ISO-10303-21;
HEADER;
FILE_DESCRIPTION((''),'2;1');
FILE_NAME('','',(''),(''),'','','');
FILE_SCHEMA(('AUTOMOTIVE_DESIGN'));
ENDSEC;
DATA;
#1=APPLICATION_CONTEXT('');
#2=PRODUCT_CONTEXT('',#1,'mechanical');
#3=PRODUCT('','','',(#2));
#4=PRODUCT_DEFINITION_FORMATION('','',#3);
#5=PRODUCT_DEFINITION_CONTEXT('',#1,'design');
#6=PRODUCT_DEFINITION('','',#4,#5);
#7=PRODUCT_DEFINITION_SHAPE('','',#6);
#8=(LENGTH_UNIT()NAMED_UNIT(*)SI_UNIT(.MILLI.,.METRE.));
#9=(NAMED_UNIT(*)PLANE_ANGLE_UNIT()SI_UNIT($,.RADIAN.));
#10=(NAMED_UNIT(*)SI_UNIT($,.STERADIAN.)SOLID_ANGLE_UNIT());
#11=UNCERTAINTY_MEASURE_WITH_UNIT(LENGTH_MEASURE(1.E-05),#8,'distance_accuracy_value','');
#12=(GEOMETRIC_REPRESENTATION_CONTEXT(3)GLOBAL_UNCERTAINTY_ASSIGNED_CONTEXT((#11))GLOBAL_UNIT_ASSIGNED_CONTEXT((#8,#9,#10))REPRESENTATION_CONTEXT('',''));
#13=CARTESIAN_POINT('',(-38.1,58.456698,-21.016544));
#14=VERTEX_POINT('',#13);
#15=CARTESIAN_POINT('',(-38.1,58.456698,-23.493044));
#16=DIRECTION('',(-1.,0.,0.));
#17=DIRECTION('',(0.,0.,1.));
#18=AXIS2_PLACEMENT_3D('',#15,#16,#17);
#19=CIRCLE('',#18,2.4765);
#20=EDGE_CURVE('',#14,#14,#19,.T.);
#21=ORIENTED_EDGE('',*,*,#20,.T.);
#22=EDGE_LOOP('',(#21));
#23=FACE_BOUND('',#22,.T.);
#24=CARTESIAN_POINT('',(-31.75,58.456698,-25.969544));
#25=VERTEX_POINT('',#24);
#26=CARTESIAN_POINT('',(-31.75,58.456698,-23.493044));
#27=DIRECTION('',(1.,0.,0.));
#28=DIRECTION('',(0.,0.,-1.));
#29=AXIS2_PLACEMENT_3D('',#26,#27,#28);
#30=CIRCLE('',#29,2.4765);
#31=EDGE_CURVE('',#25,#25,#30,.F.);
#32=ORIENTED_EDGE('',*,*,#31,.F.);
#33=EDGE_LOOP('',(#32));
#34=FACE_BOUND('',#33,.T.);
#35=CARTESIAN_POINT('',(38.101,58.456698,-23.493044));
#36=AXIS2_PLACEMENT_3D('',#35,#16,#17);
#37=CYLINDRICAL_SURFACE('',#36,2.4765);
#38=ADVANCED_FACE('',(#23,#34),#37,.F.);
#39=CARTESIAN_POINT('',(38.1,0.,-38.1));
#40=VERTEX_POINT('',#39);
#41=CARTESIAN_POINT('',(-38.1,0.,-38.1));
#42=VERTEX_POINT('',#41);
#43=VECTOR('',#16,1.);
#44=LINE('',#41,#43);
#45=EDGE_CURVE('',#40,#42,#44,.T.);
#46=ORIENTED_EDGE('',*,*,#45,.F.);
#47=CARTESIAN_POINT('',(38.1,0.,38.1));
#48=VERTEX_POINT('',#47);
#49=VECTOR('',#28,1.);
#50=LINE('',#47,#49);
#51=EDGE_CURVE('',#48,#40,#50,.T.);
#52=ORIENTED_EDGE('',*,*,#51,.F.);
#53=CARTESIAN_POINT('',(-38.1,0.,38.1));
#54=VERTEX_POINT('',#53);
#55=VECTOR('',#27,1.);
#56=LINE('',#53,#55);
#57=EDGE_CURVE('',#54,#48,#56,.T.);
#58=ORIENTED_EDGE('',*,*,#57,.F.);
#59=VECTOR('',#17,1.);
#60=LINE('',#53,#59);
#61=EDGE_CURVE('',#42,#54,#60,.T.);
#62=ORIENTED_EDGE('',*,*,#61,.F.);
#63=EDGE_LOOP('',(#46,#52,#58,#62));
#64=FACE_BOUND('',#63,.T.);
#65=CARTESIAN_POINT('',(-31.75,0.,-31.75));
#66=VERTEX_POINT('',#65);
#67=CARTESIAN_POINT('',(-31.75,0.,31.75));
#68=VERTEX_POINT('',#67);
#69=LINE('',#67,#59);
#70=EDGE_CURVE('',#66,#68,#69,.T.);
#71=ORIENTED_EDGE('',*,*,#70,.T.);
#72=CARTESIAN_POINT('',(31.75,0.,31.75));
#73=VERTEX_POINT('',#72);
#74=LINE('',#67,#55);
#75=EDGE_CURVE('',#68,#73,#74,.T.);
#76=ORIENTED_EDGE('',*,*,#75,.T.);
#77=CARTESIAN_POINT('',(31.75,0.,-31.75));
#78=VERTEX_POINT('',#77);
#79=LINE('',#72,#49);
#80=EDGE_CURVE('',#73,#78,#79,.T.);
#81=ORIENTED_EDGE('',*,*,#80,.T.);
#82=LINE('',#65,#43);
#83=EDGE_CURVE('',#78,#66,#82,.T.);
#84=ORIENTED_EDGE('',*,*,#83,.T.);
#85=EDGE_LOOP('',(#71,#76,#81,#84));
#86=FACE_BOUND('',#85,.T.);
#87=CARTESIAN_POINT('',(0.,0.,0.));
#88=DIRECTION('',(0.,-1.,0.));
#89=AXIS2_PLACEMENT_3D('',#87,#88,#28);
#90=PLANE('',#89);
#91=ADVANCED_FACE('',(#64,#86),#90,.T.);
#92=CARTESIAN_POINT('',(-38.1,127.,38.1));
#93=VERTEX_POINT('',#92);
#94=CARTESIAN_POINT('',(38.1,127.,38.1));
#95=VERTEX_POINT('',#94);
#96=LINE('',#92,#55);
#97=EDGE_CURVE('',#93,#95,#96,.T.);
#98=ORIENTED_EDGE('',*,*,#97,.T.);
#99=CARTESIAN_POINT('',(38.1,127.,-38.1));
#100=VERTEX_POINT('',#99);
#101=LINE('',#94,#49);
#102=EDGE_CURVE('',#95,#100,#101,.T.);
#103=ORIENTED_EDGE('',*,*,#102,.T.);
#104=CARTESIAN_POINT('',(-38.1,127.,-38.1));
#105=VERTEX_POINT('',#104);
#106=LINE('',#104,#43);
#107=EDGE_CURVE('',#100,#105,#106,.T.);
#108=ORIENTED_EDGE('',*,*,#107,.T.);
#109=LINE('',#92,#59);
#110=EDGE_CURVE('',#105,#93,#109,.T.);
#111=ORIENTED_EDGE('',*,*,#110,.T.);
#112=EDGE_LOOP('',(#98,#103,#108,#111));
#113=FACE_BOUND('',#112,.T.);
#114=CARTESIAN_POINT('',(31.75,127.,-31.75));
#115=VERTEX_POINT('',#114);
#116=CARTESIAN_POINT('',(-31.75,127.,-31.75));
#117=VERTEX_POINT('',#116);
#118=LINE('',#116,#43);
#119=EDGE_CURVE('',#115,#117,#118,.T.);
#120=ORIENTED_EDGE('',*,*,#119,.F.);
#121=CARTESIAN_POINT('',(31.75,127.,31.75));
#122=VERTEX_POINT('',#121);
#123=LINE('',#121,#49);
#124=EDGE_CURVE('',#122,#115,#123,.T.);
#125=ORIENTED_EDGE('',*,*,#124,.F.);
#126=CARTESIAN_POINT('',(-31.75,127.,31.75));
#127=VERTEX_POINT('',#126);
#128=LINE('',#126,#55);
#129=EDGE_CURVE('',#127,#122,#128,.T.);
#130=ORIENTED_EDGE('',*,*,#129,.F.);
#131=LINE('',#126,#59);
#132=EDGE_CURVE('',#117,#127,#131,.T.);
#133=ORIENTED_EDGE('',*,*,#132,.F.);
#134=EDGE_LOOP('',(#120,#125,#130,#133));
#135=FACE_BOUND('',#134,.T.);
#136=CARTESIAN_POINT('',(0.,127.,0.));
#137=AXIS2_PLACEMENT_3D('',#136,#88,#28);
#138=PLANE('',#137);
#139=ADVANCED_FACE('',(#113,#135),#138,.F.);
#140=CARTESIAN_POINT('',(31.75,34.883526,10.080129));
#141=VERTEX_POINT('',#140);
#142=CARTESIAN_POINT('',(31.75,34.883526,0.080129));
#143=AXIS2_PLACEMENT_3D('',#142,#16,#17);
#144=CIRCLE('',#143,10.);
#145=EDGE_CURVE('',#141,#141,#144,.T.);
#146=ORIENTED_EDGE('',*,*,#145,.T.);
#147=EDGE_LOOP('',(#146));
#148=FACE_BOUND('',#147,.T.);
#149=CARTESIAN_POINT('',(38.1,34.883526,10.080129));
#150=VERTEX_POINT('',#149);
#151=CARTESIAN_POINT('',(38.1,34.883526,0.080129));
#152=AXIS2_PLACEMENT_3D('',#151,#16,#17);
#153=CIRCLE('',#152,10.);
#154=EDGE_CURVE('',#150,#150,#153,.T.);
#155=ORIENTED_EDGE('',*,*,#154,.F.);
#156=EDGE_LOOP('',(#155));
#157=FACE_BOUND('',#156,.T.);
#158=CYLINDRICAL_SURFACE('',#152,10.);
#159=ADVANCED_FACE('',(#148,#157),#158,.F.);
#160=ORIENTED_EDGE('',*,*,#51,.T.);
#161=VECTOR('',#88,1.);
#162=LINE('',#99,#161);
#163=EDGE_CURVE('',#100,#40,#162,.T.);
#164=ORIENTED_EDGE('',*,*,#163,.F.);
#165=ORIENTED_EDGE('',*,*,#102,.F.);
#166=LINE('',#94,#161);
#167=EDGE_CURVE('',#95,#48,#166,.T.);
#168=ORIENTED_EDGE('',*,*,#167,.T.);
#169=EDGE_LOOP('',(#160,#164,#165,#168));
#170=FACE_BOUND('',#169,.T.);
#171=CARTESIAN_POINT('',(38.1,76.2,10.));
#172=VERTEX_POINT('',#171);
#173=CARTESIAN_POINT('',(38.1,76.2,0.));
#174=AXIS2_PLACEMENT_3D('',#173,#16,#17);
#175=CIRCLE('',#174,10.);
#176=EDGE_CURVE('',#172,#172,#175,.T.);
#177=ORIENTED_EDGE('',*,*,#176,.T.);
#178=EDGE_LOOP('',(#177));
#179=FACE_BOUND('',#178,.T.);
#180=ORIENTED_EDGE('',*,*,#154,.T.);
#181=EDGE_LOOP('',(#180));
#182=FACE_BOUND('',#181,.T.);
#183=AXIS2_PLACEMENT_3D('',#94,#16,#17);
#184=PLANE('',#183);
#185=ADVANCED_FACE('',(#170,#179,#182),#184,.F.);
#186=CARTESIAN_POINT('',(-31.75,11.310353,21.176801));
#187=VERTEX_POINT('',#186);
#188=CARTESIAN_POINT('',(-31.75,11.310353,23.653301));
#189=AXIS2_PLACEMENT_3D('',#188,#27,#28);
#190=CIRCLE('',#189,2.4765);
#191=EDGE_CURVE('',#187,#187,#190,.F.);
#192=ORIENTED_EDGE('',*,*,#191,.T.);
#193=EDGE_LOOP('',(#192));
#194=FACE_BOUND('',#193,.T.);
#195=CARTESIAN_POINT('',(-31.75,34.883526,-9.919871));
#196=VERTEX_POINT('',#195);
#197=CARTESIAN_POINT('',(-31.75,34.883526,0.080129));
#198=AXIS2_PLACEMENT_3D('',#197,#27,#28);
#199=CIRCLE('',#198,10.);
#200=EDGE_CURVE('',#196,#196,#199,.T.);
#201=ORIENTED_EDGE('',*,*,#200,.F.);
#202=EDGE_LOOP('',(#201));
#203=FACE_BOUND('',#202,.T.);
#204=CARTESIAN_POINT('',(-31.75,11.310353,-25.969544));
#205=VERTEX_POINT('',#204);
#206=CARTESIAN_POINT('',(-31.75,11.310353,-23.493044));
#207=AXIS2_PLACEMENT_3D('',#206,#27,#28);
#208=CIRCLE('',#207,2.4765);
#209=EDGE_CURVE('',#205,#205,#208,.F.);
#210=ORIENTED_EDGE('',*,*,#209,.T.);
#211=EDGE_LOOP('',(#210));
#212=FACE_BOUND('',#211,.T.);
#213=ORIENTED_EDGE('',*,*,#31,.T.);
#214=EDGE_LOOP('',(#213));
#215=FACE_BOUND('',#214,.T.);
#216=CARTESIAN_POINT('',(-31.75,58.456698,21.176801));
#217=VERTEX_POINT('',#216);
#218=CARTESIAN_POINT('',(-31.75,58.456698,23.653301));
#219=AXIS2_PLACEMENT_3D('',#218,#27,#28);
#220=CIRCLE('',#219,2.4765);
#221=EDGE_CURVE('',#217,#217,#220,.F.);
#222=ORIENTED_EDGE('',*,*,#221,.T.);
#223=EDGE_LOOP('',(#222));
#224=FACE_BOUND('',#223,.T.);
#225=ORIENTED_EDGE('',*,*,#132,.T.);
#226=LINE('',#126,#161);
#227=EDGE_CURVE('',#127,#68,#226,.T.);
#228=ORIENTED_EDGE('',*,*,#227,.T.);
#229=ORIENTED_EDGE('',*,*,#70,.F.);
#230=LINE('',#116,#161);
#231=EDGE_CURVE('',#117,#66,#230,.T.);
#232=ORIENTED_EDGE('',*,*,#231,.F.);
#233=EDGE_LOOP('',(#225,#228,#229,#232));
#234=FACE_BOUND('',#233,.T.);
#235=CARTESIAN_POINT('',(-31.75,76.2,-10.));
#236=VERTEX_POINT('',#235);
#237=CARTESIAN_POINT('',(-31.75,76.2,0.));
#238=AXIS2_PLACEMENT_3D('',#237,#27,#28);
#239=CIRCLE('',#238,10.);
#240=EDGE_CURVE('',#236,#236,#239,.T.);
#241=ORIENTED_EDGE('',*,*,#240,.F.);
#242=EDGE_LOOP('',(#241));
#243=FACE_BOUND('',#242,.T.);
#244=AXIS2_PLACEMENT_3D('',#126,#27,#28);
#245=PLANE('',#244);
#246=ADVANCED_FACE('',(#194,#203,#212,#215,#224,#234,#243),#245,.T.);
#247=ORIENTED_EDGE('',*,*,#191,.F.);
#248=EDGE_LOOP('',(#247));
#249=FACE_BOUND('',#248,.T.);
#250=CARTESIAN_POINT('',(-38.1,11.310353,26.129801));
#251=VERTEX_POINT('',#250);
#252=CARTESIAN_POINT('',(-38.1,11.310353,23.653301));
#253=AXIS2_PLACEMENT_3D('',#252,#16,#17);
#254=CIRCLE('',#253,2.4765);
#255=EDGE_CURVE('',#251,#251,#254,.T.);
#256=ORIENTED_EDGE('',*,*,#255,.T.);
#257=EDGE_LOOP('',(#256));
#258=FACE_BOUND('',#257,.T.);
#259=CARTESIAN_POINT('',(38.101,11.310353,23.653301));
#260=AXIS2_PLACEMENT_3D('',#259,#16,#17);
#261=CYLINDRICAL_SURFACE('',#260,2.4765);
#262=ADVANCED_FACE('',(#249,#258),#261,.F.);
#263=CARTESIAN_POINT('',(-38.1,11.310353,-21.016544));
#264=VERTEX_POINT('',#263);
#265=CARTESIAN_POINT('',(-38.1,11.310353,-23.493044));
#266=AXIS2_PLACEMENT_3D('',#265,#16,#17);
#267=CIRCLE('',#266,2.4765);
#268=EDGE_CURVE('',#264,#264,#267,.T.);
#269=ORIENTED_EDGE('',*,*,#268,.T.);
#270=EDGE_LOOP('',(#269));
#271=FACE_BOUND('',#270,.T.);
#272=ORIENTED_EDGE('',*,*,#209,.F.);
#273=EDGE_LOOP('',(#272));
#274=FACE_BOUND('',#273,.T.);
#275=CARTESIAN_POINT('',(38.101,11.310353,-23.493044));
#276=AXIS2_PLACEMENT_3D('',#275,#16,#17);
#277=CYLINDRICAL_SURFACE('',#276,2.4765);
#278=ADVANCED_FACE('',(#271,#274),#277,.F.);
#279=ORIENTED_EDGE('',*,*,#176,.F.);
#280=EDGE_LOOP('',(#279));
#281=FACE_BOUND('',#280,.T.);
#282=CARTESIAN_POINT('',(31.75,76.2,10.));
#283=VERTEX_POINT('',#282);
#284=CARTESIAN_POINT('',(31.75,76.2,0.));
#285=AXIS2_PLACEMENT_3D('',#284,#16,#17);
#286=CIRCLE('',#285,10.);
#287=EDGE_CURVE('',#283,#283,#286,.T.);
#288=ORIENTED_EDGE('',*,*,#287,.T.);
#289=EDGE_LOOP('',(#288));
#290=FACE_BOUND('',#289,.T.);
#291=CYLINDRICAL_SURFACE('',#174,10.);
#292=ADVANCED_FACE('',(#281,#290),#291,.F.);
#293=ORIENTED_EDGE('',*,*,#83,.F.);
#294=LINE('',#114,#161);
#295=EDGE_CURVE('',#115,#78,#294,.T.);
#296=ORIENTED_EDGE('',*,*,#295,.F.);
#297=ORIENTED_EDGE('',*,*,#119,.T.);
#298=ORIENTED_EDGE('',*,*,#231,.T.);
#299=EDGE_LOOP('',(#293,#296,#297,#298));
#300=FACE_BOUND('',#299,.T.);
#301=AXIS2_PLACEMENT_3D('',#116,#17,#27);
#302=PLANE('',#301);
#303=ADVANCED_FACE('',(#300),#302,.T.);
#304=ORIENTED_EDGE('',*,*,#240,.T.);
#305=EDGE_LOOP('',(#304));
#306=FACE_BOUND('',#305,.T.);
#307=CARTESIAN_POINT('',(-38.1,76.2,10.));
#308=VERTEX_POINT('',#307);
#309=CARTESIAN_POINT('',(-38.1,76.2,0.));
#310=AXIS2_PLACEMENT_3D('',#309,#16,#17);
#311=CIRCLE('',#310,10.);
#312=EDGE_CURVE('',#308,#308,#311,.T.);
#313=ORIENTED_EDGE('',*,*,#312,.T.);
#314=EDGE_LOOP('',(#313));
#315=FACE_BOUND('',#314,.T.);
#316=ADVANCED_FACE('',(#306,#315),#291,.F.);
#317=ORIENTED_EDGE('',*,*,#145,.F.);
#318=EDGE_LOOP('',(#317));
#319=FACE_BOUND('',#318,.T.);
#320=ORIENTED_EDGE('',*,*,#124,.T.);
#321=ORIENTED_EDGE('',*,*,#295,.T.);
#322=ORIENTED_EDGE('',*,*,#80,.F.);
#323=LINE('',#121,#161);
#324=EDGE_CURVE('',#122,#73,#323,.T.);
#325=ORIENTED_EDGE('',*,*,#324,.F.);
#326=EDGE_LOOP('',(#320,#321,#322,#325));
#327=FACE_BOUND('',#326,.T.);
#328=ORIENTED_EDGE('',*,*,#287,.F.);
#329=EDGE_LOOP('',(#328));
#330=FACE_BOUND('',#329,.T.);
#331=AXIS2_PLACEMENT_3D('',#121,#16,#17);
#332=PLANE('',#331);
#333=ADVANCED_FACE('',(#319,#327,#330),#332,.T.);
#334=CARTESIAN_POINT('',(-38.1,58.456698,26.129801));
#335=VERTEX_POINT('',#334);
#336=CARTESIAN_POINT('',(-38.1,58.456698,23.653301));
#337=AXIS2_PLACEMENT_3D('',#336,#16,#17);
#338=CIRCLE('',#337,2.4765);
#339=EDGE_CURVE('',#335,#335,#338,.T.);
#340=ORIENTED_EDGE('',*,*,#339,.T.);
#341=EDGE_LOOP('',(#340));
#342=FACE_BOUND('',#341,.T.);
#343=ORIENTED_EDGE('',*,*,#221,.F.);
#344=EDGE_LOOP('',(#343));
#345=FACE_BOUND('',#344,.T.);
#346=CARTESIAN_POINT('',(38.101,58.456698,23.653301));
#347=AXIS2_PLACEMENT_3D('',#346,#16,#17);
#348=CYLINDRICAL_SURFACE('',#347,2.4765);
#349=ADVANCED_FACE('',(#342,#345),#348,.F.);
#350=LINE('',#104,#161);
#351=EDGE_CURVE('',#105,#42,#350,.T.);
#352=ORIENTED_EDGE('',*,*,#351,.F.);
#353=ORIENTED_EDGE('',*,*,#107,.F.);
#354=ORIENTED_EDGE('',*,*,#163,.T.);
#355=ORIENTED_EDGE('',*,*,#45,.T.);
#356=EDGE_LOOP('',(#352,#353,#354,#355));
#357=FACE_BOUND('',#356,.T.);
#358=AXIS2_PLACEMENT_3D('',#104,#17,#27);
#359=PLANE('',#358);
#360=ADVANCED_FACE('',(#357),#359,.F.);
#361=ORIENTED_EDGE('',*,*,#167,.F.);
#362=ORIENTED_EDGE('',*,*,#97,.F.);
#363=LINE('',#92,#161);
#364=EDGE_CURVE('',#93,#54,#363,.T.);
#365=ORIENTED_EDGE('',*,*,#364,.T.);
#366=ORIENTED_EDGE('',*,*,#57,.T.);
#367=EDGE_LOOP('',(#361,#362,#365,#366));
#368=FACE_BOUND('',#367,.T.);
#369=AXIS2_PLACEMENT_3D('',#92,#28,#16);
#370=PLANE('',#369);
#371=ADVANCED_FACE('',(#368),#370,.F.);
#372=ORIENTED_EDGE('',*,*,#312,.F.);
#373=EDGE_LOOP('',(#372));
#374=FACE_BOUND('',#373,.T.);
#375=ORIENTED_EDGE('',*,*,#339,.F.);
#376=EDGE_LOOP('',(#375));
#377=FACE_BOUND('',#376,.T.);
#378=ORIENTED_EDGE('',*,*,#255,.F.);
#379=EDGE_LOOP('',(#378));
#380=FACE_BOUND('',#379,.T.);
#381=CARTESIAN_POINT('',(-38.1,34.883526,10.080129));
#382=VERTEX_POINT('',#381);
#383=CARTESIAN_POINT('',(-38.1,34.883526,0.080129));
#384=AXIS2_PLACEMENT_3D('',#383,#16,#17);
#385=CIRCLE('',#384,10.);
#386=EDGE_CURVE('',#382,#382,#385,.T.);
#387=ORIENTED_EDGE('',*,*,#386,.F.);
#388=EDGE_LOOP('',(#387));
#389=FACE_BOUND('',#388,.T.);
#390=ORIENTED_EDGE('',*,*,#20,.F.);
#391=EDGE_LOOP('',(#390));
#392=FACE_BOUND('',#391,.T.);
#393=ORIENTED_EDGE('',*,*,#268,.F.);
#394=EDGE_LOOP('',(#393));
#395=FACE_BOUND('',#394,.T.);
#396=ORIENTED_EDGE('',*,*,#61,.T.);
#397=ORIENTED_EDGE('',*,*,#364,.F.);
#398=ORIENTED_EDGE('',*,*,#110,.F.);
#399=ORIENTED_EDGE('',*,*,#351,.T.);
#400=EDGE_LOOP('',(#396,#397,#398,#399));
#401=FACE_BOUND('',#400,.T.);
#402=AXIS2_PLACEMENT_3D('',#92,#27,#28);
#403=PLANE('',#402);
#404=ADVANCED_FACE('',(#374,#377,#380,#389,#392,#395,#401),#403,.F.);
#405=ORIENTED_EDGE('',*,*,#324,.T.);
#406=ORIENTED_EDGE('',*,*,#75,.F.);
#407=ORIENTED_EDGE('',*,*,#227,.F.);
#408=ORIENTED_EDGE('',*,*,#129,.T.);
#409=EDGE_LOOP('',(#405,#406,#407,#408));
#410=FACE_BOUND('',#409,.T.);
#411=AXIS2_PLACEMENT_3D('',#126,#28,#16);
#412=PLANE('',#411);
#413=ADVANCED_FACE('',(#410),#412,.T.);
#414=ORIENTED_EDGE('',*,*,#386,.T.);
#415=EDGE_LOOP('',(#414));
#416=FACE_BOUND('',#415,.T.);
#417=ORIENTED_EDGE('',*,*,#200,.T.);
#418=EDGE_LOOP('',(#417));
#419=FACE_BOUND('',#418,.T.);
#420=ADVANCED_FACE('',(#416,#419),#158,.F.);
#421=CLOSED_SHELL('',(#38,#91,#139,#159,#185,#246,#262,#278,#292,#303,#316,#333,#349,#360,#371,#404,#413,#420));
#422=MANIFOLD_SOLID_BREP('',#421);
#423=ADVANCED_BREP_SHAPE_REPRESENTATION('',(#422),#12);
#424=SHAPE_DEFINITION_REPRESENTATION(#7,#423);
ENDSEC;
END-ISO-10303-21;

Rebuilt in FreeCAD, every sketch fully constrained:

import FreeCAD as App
import Part
import Sketcher
Q = App.Units.Quantity


def add_polygon(sketch, points):
    """Adds a closed chain of lines whose ends are joined by coincident constraints."""
    first, n = sketch.GeometryCount, len(points)
    for a, b in zip(points, points[1:] + points[:1]):
        sketch.addGeometry(Part.LineSegment(App.Vector(*a, 0), App.Vector(*b, 0)), False)
    for i in range(n):
        sketch.addConstraint(Sketcher.Constraint("Coincident", first + i, 2, first + (i + 1) % n, 1))

doc = App.newDocument("Part")
body = doc.addObject("PartDesign::Body", "Body")

# Sketch on XZ plane
sketch1 = body.newObject("Sketcher::SketchObject", "Sketch")
sketch1.AttachmentSupport = (doc.getObject("XZ_Plane"), [""])
sketch1.MapMode = "FlatFace"
add_polygon(sketch1, [(-38.1, -38.1), (-38.1, 38.1), (38.1, 38.1), (38.1, -38.1)])  # lines 0-3
add_polygon(sketch1, [(31.75, 31.75), (-31.75, 31.75), (-31.75, -31.75), (31.75, -31.75)])  # lines 4-7
sketch1.addConstraint(Sketcher.Constraint("Vertical", 0))
sketch1.addConstraint(Sketcher.Constraint("Horizontal", 1))
sketch1.addConstraint(Sketcher.Constraint("Vertical", 2))
sketch1.addConstraint(Sketcher.Constraint("Horizontal", 3))
sketch1.addConstraint(Sketcher.Constraint("Horizontal", 4))
sketch1.addConstraint(Sketcher.Constraint("Vertical", 5))
sketch1.addConstraint(Sketcher.Constraint("Horizontal", 6))
sketch1.addConstraint(Sketcher.Constraint("Vertical", 7))
sketch1.addConstraint(Sketcher.Constraint("Symmetric", 0, 2, 2, 2, -1, 1))
sketch1.addConstraint(Sketcher.Constraint("Symmetric", 4, 2, 6, 2, -1, 1))
sketch1.addConstraint(Sketcher.Constraint("Equal", 3, 0))
sketch1.addConstraint(Sketcher.Constraint("Equal", 6, 5))
sketch1.addConstraint(Sketcher.Constraint("DistanceX", 1, 1, 1, 2, Q("3 in")))
sketch1.addConstraint(Sketcher.Constraint("DistanceX", 4, 2, 4, 1, Q("2.5 in")))
pad1 = body.newObject("PartDesign::Pad", "Pad")
pad1.Profile = sketch1
pad1.Length = Q("5 in")
pad1.Reversed = True

# Sketch on YZ plane
sketch2 = body.newObject("Sketcher::SketchObject", "Sketch001")
sketch2.AttachmentSupport = (doc.getObject("YZ_Plane"), [""])
sketch2.MapMode = "FlatFace"
sketch2.AttachmentOffset = App.Placement(App.Vector(0, 0, -1.5 * 25.4), App.Rotation())
sketch2.addGeometry(Part.Circle(App.Vector(58.456698, -23.493044, 0), App.Vector(0, 0, 1), 2.4765), False)
sketch2.addConstraint(Sketcher.Constraint("Diameter", 0, Q("0.195 in")))
sketch2.addConstraint(Sketcher.Constraint("DistanceX", -1, 1, 0, 3, 58.456698))
sketch2.addConstraint(Sketcher.Constraint("DistanceY", 0, 3, -1, 1, 23.493044))
pocket1 = body.newObject("PartDesign::Pocket", "Pocket")
pocket1.Profile = sketch2
pocket1.Type = "UpToFirst"
pocket1.Reversed = True

# Sketch on YZ plane
sketch3 = body.newObject("Sketcher::SketchObject", "Sketch002")
sketch3.AttachmentSupport = (doc.getObject("YZ_Plane"), [""])
sketch3.MapMode = "FlatFace"
sketch3.AttachmentOffset = App.Placement(App.Vector(0, 0, -1.5 * 25.4), App.Rotation())
sketch3.addGeometry(Part.Circle(App.Vector(58.456698, 23.653301, 0), App.Vector(0, 0, 1), 2.4765), False)
sketch3.addConstraint(Sketcher.Constraint("Diameter", 0, Q("0.195 in")))
sketch3.addConstraint(Sketcher.Constraint("DistanceY", -1, 1, 0, 3, 23.653301))
sketch3.addConstraint(Sketcher.Constraint("DistanceX", -1, 1, 0, 3, 58.456698))
pocket2 = body.newObject("PartDesign::Pocket", "Pocket001")
pocket2.Profile = sketch3
pocket2.Type = "UpToFirst"
pocket2.Reversed = True

# Sketch on YZ plane
sketch4 = body.newObject("Sketcher::SketchObject", "Sketch003")
sketch4.AttachmentSupport = (doc.getObject("YZ_Plane"), [""])
sketch4.MapMode = "FlatFace"
sketch4.AttachmentOffset = App.Placement(App.Vector(0, 0, -1.5 * 25.4), App.Rotation())
sketch4.addGeometry(Part.Circle(App.Vector(11.310353, 23.653301, 0), App.Vector(0, 0, 1), 2.4765), False)
sketch4.addConstraint(Sketcher.Constraint("Diameter", 0, Q("0.195 in")))
sketch4.addConstraint(Sketcher.Constraint("DistanceY", -1, 1, 0, 3, 23.653301))
sketch4.addConstraint(Sketcher.Constraint("DistanceX", -1, 1, 0, 3, 11.310353))
pocket3 = body.newObject("PartDesign::Pocket", "Pocket002")
pocket3.Profile = sketch4
pocket3.Type = "UpToFirst"
pocket3.Reversed = True

# Sketch on YZ plane
sketch5 = body.newObject("Sketcher::SketchObject", "Sketch004")
sketch5.AttachmentSupport = (doc.getObject("YZ_Plane"), [""])
sketch5.MapMode = "FlatFace"
sketch5.AttachmentOffset = App.Placement(App.Vector(0, 0, -1.5 * 25.4), App.Rotation())
sketch5.addGeometry(Part.Circle(App.Vector(11.310353, -23.493044, 0), App.Vector(0, 0, 1), 2.4765), False)
sketch5.addConstraint(Sketcher.Constraint("Diameter", 0, Q("0.195 in")))
sketch5.addConstraint(Sketcher.Constraint("DistanceX", -1, 1, 0, 3, 11.310353))
sketch5.addConstraint(Sketcher.Constraint("DistanceY", 0, 3, -1, 1, 23.493044))
pocket4 = body.newObject("PartDesign::Pocket", "Pocket003")
pocket4.Profile = sketch5
pocket4.Type = "UpToFirst"
pocket4.Reversed = True

# Sketch on YZ plane
sketch6 = body.newObject("Sketcher::SketchObject", "Sketch005")
sketch6.AttachmentSupport = (doc.getObject("YZ_Plane"), [""])
sketch6.MapMode = "FlatFace"
sketch6.AttachmentOffset = App.Placement(App.Vector(0, 0, -1.5 * 25.4), App.Rotation())
sketch6.addGeometry(Part.Circle(App.Vector(34.883526, 0.080129, 0), App.Vector(0, 0, 1), 10), False)
sketch6.addConstraint(Sketcher.Constraint("Diameter", 0, 20.0))
sketch6.addConstraint(Sketcher.Constraint("DistanceY", -1, 1, 0, 3, 0.080129))
sketch6.addConstraint(Sketcher.Constraint("DistanceX", -1, 1, 0, 3, 34.883526))
pocket5 = body.newObject("PartDesign::Pocket", "Pocket004")
pocket5.Profile = sketch6
pocket5.Type = "ThroughAll"
pocket5.Reversed = True

# Sketch on YZ plane
sketch7 = body.newObject("Sketcher::SketchObject", "Sketch006")
sketch7.AttachmentSupport = (doc.getObject("YZ_Plane"), [""])
sketch7.MapMode = "FlatFace"
sketch7.AttachmentOffset = App.Placement(App.Vector(0, 0, -1.5 * 25.4), App.Rotation())
sketch7.addGeometry(Part.Circle(App.Vector(76.2, 0, 0), App.Vector(0, 0, 1), 10), False)
sketch7.addConstraint(Sketcher.Constraint("PointOnObject", 0, 3, -1))
sketch7.addConstraint(Sketcher.Constraint("DistanceX", -1, 1, 0, 3, Q("3 in")))
sketch7.addConstraint(Sketcher.Constraint("Diameter", 0, 20.0))
pocket6 = body.newObject("PartDesign::Pocket", "Pocket005")
pocket6.Profile = sketch7
pocket6.Type = "ThroughAll"
pocket6.Reversed = True

doc.recompute()
